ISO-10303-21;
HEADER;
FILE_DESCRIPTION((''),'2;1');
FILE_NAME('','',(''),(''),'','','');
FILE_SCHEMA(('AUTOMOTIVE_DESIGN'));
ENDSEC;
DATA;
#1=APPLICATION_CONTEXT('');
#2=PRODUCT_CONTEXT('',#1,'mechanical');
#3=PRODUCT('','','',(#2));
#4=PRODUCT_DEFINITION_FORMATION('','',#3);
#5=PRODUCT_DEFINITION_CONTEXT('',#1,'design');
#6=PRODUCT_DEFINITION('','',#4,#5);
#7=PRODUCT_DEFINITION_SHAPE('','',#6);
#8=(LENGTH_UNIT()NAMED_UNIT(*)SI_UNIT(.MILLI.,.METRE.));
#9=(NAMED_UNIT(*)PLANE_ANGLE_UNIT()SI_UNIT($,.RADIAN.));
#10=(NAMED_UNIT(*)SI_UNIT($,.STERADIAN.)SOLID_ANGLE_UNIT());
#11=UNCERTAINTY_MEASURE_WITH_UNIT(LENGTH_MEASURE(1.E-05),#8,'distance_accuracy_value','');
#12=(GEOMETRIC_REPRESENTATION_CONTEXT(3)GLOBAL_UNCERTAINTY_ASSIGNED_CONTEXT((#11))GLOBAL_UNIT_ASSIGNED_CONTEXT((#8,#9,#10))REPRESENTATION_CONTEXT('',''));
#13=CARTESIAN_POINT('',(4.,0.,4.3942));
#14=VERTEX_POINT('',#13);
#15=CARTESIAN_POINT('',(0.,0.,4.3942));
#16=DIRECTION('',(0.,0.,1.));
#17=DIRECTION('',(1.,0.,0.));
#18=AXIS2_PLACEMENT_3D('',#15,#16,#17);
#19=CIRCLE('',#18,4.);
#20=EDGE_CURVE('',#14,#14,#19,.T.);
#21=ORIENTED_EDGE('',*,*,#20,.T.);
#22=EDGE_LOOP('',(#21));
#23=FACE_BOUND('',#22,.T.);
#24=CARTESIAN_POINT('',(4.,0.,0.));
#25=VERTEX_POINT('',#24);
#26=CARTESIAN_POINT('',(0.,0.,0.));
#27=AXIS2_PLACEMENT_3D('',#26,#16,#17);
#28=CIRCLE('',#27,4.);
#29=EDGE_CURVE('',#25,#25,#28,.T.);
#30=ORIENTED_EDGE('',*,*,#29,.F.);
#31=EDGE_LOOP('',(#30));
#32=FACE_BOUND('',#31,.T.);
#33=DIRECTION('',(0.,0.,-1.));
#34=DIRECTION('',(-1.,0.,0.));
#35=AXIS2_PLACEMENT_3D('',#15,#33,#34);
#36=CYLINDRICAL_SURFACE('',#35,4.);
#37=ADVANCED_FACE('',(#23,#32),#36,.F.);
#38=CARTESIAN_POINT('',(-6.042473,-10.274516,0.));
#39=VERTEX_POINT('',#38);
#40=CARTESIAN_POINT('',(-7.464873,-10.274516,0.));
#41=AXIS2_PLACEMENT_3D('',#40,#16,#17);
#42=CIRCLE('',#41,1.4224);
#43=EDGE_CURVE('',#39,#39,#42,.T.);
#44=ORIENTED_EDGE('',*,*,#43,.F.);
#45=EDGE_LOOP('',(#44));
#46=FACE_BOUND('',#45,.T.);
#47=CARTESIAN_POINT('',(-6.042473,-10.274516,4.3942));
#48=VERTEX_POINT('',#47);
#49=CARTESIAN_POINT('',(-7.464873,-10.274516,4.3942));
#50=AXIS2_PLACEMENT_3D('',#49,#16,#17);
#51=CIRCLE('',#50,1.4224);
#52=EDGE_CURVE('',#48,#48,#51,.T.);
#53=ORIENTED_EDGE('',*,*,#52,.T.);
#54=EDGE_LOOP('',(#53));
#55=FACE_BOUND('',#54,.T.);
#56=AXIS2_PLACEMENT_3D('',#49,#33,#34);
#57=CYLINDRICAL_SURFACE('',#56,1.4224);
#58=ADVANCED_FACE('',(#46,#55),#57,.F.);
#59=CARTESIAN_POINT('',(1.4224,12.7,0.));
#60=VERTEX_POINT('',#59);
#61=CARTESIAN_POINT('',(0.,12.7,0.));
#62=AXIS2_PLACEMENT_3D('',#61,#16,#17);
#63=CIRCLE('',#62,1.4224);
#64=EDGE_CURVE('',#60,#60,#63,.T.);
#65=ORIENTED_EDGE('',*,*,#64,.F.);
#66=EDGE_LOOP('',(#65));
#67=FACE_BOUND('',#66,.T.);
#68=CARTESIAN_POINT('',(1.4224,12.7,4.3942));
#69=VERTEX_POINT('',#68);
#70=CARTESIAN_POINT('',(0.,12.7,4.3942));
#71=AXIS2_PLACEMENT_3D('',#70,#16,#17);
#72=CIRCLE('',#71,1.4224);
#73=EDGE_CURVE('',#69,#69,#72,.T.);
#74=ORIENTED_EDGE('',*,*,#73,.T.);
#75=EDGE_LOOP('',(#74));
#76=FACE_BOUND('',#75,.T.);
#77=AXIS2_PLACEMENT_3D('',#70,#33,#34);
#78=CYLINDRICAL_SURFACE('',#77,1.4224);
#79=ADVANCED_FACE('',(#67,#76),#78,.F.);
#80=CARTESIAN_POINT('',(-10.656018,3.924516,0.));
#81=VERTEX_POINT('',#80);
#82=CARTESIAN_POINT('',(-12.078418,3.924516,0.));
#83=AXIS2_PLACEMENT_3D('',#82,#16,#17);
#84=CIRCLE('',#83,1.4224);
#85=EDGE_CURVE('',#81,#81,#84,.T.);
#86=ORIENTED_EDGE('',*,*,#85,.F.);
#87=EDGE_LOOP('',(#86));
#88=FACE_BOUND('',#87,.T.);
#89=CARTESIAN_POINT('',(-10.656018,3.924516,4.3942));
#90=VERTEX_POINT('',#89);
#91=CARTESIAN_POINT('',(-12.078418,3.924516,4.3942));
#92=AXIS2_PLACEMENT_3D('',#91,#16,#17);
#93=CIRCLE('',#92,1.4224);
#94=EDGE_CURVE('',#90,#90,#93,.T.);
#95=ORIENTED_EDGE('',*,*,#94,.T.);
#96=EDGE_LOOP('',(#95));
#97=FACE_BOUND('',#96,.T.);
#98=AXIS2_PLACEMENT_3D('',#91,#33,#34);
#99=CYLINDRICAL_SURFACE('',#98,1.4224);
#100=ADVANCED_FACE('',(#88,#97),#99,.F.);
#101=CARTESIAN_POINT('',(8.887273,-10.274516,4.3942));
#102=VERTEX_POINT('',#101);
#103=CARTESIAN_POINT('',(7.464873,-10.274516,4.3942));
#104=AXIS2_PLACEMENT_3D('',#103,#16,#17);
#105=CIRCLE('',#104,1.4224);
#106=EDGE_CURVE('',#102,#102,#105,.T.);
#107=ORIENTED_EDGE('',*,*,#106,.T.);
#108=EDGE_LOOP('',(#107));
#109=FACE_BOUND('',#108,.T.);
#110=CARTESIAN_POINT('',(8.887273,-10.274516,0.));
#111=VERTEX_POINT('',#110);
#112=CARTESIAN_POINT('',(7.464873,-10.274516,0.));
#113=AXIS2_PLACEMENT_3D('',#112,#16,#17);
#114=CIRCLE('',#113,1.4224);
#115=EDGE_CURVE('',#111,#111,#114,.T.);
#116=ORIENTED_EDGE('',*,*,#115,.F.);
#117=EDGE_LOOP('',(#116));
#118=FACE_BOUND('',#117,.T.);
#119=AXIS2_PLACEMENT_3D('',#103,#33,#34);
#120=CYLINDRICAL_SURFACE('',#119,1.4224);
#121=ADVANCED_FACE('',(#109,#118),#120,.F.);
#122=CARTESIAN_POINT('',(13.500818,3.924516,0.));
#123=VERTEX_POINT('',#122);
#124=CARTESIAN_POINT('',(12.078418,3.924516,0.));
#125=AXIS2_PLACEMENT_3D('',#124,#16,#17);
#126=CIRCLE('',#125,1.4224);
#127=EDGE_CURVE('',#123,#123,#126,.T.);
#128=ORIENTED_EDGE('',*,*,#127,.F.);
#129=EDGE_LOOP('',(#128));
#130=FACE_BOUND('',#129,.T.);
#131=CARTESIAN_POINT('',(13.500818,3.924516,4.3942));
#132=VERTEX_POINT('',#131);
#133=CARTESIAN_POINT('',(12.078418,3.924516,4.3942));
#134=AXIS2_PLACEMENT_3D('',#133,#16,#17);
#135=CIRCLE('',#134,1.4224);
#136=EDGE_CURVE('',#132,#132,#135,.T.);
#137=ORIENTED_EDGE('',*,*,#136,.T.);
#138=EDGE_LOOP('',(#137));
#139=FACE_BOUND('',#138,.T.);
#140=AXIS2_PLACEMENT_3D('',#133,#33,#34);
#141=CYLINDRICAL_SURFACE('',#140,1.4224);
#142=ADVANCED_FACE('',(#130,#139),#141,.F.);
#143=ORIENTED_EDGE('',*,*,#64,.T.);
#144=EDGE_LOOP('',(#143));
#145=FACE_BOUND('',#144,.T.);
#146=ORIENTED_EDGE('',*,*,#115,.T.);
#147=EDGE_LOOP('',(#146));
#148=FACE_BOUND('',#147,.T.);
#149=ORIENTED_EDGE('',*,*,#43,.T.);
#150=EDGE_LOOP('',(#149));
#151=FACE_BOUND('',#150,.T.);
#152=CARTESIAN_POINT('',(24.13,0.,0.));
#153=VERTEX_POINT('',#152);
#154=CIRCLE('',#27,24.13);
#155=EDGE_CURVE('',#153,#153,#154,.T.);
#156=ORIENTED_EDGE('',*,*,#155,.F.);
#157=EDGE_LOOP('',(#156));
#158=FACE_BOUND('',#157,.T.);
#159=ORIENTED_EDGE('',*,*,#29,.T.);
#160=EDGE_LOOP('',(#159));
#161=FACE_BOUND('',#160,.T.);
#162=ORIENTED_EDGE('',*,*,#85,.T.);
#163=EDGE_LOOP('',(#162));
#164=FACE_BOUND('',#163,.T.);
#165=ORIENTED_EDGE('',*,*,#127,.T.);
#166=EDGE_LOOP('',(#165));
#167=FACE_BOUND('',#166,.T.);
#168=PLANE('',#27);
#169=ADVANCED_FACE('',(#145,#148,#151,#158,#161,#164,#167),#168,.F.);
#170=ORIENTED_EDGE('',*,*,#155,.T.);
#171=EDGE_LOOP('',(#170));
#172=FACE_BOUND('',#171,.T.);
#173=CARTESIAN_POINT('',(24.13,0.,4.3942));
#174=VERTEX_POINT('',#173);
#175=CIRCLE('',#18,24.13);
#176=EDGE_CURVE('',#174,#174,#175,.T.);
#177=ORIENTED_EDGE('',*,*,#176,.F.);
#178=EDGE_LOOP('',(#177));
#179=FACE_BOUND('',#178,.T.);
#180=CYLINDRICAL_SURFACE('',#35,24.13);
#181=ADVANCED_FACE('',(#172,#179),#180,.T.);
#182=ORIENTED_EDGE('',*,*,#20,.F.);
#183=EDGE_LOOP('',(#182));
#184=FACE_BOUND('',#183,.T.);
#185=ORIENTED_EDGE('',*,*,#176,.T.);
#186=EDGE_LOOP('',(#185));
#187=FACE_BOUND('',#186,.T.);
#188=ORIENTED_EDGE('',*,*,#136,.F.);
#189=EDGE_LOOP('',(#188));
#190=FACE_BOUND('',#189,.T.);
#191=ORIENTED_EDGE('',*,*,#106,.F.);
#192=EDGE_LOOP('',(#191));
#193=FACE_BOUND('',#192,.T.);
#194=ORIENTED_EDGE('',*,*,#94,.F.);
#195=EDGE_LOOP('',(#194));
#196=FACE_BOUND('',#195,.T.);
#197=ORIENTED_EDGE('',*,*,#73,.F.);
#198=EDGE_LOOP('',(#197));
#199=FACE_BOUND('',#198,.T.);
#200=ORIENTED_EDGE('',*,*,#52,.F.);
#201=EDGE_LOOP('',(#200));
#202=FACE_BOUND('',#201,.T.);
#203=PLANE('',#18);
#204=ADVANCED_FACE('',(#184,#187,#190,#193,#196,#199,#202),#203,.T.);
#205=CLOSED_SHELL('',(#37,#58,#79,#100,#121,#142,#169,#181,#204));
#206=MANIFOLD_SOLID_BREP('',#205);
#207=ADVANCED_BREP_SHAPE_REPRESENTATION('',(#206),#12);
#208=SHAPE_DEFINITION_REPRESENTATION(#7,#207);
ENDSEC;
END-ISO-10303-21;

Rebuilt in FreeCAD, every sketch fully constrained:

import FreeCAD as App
import Part
import Sketcher
Q = App.Units.Quantity

doc = App.newDocument("Part")
body = doc.addObject("PartDesign::Body", "Body")

# Sketch on XY plane
sketch1 = doc.addObject("Sketcher::SketchObject", "Sketch")
body.addObject(sketch1)
sketch1.AttachmentSupport = (doc.XY_Plane, [""])
sketch1.MapMode = "FlatFace"
sketch1.addGeometry([
    Part.Circle(App.Vector(0, 0, 0), App.Vector(0, 0, 1), 24.1),  # 0
    Part.Circle(App.Vector(-7.5, -10.3, 0), App.Vector(0, 0, 1), 1.4),  # 1
    Part.Circle(App.Vector(7.5, -10.3, 0), App.Vector(0, 0, 1), 1.4),  # 2
    Part.Circle(App.Vector(0, 0, 0), App.Vector(0, 0, 1), 4),  # 3
    Part.Circle(App.Vector(-12.1, 3.9, 0), App.Vector(0, 0, 1), 1.4),  # 4
    Part.Circle(App.Vector(12.1, 3.9, 0), App.Vector(0, 0, 1), 1.4),  # 5
    Part.Circle(App.Vector(0, 12.7, 0), App.Vector(0, 0, 1), 1.4),  # 6
], False)
sketch1.addConstraint([
    Sketcher.Constraint("Coincident", 0, 3, -1, 1),
    Sketcher.Constraint("Coincident", 3, 3, -1, 1),
    Sketcher.Constraint("Equal", 1, 2),
    Sketcher.Constraint("Equal", 2, 4),
    Sketcher.Constraint("Equal", 4, 5),
    Sketcher.Constraint("Equal", 5, 6),
    Sketcher.Constraint("Symmetric", 1, 3, 2, 3, -2),
    Sketcher.Constraint("Symmetric", 4, 3, 5, 3, -2),
    Sketcher.Constraint("PointOnObject", 6, 3, -2),
    Sketcher.Constraint("Diameter", 0, Q("1.9 in")),
    Sketcher.Constraint("Diameter", 1, Q("0.112 in")),
    Sketcher.Constraint("DistanceY", -1, 1, 6, 3, Q("0.5 in")),
    Sketcher.Constraint("Diameter", 3, Q("8 mm")),
    Sketcher.Constraint("DistanceY", 1, 3, 4, 3, Q("14.199032 mm")),
    Sketcher.Constraint("DistanceX", 4, 3, 2, 3, Q("19.54329 mm")),
    Sketcher.Constraint("DistanceX", 1, 3, -1, 1, Q("7.464873 mm")),
    Sketcher.Constraint("DistanceY", 1, 3, -1, 1, Q("10.274516 mm")),
])
pad1 = doc.addObject("PartDesign::Pad", "Pad")
body.addObject(pad1)
pad1.Profile = sketch1
pad1.Length = Q("0.173 in")

doc.recompute()
